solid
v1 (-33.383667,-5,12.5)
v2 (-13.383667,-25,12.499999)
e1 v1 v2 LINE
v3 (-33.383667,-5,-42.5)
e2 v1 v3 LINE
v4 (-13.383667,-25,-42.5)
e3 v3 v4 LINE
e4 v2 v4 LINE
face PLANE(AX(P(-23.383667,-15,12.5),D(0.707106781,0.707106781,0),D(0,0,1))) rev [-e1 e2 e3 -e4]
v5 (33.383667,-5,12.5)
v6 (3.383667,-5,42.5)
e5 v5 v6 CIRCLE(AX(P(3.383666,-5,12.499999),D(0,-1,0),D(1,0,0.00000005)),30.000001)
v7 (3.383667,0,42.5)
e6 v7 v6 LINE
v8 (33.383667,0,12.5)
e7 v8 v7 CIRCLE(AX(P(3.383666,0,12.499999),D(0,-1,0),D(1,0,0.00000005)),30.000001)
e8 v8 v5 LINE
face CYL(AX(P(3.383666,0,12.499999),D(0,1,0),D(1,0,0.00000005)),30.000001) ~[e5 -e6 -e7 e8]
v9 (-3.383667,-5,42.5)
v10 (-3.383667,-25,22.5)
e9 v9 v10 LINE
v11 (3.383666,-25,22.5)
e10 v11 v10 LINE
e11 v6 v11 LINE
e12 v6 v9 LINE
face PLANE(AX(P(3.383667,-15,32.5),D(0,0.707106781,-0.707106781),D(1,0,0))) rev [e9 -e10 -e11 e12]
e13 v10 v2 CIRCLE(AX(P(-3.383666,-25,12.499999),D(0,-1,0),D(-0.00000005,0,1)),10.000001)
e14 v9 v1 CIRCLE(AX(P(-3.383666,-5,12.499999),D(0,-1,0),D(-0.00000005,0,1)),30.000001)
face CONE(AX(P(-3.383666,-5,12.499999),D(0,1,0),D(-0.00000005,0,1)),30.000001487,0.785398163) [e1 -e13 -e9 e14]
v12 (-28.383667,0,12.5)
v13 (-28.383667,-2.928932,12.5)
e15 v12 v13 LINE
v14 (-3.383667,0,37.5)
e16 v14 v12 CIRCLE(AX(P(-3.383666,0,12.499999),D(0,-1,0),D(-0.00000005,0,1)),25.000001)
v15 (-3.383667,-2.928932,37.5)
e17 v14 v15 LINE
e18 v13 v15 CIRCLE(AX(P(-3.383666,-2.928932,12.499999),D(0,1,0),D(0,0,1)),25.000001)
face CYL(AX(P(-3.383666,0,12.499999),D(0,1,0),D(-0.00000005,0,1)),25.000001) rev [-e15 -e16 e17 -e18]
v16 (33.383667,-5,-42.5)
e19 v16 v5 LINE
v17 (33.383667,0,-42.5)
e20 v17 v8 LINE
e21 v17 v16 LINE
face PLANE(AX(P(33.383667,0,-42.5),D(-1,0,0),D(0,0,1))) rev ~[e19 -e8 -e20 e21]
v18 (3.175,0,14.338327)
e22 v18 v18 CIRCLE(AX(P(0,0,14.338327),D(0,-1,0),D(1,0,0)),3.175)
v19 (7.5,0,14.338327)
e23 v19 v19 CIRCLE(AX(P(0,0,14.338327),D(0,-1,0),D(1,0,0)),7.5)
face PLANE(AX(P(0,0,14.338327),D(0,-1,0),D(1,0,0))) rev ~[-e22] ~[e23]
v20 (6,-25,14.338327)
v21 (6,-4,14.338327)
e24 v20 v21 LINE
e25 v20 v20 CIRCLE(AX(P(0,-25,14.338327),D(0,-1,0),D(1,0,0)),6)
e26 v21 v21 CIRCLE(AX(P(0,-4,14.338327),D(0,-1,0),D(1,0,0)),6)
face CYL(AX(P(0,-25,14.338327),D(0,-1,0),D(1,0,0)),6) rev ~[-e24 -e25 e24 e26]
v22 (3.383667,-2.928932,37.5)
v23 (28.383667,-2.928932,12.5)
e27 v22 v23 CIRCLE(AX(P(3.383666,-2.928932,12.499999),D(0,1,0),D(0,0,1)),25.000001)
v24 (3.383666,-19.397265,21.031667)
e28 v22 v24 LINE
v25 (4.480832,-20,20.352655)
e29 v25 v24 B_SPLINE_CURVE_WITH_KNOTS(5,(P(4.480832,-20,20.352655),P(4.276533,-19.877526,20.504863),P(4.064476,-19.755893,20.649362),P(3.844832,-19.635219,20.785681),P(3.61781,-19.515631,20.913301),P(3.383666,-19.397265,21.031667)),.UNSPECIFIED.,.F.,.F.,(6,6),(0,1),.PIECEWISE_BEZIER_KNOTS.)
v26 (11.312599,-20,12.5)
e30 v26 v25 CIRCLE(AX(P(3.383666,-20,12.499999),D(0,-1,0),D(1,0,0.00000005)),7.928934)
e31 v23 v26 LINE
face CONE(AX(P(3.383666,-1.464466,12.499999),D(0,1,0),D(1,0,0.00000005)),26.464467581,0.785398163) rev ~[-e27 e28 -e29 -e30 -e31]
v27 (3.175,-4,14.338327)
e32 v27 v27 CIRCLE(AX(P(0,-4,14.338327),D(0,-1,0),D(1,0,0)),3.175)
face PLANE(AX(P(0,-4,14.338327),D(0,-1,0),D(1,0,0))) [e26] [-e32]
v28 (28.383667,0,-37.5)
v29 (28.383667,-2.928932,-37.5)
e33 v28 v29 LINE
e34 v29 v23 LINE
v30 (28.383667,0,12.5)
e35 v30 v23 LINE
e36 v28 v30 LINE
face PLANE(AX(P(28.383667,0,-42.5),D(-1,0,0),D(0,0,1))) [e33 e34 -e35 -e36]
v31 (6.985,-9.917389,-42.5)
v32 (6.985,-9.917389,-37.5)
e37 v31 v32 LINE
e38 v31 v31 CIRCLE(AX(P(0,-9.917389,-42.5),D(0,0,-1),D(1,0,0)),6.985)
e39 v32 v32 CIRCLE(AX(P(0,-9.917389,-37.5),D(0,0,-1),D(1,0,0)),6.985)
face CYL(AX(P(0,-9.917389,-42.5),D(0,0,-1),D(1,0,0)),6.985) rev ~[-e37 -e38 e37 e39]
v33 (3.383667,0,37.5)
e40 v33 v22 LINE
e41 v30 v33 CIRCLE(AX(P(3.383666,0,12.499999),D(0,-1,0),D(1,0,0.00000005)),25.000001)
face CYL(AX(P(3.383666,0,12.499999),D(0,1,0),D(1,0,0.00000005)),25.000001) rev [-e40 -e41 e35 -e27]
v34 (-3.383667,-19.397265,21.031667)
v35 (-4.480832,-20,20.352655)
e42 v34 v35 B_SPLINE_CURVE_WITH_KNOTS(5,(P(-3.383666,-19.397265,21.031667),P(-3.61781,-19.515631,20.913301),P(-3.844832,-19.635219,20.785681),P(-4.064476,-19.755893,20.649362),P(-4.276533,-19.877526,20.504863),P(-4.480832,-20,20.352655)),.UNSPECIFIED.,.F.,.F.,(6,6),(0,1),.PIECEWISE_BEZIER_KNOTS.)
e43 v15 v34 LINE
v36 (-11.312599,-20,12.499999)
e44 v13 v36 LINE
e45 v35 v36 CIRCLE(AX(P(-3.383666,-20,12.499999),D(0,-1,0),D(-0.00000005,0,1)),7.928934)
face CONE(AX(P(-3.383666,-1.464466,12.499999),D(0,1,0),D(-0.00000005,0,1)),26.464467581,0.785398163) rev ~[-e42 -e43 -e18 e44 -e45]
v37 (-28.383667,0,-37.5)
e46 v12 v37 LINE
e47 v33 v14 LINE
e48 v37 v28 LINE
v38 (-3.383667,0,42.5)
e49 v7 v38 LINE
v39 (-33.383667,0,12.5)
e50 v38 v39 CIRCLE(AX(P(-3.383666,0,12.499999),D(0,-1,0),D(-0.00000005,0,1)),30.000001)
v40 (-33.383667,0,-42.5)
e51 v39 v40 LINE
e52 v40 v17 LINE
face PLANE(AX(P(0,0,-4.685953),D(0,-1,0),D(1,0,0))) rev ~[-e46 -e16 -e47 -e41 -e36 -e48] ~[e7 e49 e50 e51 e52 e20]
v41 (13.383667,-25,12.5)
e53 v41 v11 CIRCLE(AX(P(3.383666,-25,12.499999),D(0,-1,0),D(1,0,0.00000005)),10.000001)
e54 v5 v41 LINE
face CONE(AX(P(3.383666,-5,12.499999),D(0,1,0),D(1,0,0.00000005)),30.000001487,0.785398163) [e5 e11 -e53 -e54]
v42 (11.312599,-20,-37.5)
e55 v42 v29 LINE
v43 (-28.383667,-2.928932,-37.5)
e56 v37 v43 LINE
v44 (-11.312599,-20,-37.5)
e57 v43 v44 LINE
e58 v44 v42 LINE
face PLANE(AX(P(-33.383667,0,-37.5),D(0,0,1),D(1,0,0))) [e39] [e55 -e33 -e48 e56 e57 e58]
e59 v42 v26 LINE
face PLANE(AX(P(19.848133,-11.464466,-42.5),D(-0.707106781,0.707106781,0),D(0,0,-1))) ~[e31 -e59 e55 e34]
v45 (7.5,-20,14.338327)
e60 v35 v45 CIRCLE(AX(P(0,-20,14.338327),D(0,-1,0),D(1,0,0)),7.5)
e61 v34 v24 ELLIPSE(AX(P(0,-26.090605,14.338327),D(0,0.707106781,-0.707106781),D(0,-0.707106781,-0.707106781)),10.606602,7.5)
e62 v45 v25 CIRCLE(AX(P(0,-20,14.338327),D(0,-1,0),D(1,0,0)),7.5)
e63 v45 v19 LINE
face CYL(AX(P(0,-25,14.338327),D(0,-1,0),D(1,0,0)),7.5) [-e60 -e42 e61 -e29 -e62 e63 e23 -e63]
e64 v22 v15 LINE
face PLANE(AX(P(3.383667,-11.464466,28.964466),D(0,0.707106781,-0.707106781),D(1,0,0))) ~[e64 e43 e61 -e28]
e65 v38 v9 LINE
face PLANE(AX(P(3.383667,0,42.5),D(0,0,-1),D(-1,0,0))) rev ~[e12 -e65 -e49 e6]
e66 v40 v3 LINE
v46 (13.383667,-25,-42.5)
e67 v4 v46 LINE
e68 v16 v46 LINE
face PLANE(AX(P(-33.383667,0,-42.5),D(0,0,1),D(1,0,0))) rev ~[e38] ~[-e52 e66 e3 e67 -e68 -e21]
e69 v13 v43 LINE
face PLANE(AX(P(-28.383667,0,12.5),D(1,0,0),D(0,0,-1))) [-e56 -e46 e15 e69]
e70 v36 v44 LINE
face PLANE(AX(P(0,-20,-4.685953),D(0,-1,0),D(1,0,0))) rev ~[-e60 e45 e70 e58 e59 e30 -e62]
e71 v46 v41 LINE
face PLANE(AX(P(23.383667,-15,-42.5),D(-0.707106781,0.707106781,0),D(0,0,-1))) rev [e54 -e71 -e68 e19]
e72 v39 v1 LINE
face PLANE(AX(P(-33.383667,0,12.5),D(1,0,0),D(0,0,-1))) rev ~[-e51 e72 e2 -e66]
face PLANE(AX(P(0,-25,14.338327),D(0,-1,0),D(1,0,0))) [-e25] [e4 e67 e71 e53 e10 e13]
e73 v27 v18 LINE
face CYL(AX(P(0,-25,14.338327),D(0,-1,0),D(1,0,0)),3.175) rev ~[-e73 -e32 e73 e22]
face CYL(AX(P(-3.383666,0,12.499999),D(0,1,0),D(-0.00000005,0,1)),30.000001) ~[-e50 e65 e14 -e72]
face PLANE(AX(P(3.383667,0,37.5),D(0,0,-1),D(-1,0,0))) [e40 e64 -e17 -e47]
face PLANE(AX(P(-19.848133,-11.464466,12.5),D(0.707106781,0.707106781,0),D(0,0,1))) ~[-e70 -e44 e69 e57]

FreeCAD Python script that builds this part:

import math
import FreeCAD as App
import Part
import Sketcher

V = App.Vector
Q = App.Units.Quantity


def edges_at(feature, points):
    """Names of the edges that pass closest to the given points."""
    edges = feature.Shape.Edges
    near = lambda p: min(range(len(edges)), key=lambda i: edges[i].distToShape(Part.Vertex(*p))[0])
    return sorted({f"Edge{near(p) + 1}" for p in points})


def faces_at(feature, points):
    """Names of the faces that lie closest to the given points."""
    faces = feature.Shape.Faces
    near = lambda p: min(range(len(faces)), key=lambda i: faces[i].distToShape(Part.Vertex(*p))[0])
    return sorted({f"Face{near(p) + 1}" for p in points})

doc = App.newDocument("Part")
params = doc.addObject("Spreadsheet::Sheet", "Params")
for row, (alias, value) in enumerate([
    ("sketch1_radius", "30.000001 mm"),
    ("sketch1_height", "55 mm"),
    ("pad1_length", "25 mm"),
    ("chamfer_size", "20 mm"),
    ("thickness_wall", "5 mm"),
    ("sketch2_diameter", "13.97 mm"),
    ("pocket1_length", "25 mm"),
    ("sketch3_diameter", "15 mm"),
    ("pad2_length", "25 mm"),
    ("sketch4_diameter", "12 mm"),
    ("pocket2_length", "21 mm"),
    ("sketch5_diameter", "6.35 mm"),
], start=1):
    params.set(f"A{row}", alias)
    params.set(f"B{row}", "=" + value)
    params.setAlias(f"B{row}", alias)

body = doc.addObject("PartDesign::Body", "Body")

# Sketch on XZ plane
sketch1 = body.newObject("Sketcher::SketchObject", "Sketch")
sketch1.AttachmentSupport = (doc.getObject("XZ_Plane"), [""])
sketch1.MapMode = "FlatFace"
sketch1.addGeometry([
    Part.ArcOfCircle(Part.Circle(V(3, 12, 0), V(0, 0, 1), 30), math.radians(0), math.radians(90)),  # 0
    Part.LineSegment(V(3, 42, 0), V(-3, 42, 0)),  # 1
    Part.ArcOfCircle(Part.Circle(V(-3, 12, 0), V(0, 0, 1), 30), math.radians(90), math.radians(180)),  # 2
    Part.LineSegment(V(-33, 12, 0), V(-33, -42, 0)),  # 3
    Part.LineSegment(V(-33, -42, 0), V(33, -42, 0)),  # 4
    Part.LineSegment(V(33, -42, 0), V(33, 12, 0)),  # 5
], False)
sketch1.addConstraint([
    Sketcher.Constraint("Tangent", 0, 2, 1, 1),
    Sketcher.Constraint("Tangent", 1, 2, 2, 1),
    Sketcher.Constraint("Tangent", 2, 2, 3, 1),
    Sketcher.Constraint("Coincident", 3, 2, 4, 1),
    Sketcher.Constraint("Coincident", 4, 2, 5, 1),
    Sketcher.Constraint("Tangent", 5, 2, 0, 1),
    Sketcher.Constraint("Horizontal", 1),
    Sketcher.Constraint("Vertical", 3),
    Sketcher.Constraint("Horizontal", 4),
    Sketcher.Constraint("Vertical", 5),
    Sketcher.Constraint("Equal", 0, 2),
    Sketcher.Constraint("Radius", 0, Q("30.000001 mm")),
    Sketcher.Constraint("DistanceY", 3, 2, 3, 1, Q("55 mm")),
    Sketcher.Constraint("DistanceY", -1, 1, 0, 3, Q("12.499999 mm")),
    Sketcher.Constraint("DistanceX", 1, 2, 1, 1, Q("6.767334 mm")),
    Sketcher.Constraint("DistanceX", -1, 1, 0, 3, Q("3.383666 mm")),
])
sketch1.setExpression("Constraints[11]", "Params.sketch1_radius")
sketch1.setExpression("Constraints[12]", "Params.sketch1_height")
pad1 = body.newObject("PartDesign::Pad", "Pad")
pad1.Profile = sketch1
pad1.setExpression("Length", "Params.pad1_length")
doc.recompute()

chamfer = body.newObject("PartDesign::Chamfer", "Chamfer")
chamfer.Base = (pad1, edges_at(pad1, [(-33.384, -25, -15)]))
chamfer.setExpression("Size", "Params.chamfer_size")
doc.recompute()

thickness = body.newObject("PartDesign::Thickness", "Thickness")
thickness.Base = (chamfer, faces_at(chamfer, [(0, 0, 0)]))
thickness.setExpression("Value", "Params.thickness_wall")
thickness.Reversed = True
thickness.Join = "Arc"

# Sketch on XY plane
sketch2 = body.newObject("Sketcher::SketchObject", "Sketch001")
sketch2.AttachmentSupport = (doc.getObject("XY_Plane"), [""])
sketch2.MapMode = "FlatFace"
sketch2.AttachmentOffset = App.Placement(V(0, 0, -42.5), App.Rotation())
sketch2.addGeometry(Part.Circle(V(0, -10, 0), V(0, 0, 1), 7), False)
sketch2.addConstraint([
    Sketcher.Constraint("PointOnObject", 0, 3, -2),
    Sketcher.Constraint("Diameter", 0, Q("13.97 mm")),
    Sketcher.Constraint("DistanceY", 0, 3, -1, 1, Q("9.917389 mm")),
])
sketch2.setExpression("Constraints[1]", "Params.sketch2_diameter")
pocket1 = body.newObject("PartDesign::Pocket", "Pocket")
pocket1.Profile = sketch2
pocket1.setExpression("Length", "Params.pocket1_length")
pocket1.Reversed = True

# Sketch on XZ plane
sketch3 = body.newObject("Sketcher::SketchObject", "Sketch002")
sketch3.AttachmentSupport = (doc.getObject("XZ_Plane"), [""])
sketch3.MapMode = "FlatFace"
sketch3.AttachmentOffset = App.Placement(V(0, 0, 25), App.Rotation())
sketch3.addGeometry(Part.Circle(V(0, 14, 0), V(0, 0, 1), 8), False)
sketch3.addConstraint([
    Sketcher.Constraint("PointOnObject", 0, 3, -2),
    Sketcher.Constraint("Diameter", 0, Q("15 mm")),
    Sketcher.Constraint("DistanceY", -1, 1, 0, 3, Q("14.338327 mm")),
])
sketch3.setExpression("Constraints[1]", "Params.sketch3_diameter")
pad2 = body.newObject("PartDesign::Pad", "Pad001")
pad2.Profile = sketch3
pad2.setExpression("Length", "Params.pad2_length")
pad2.Reversed = True

# Sketch on XZ plane
sketch4 = body.newObject("Sketcher::SketchObject", "Sketch003")
sketch4.AttachmentSupport = (doc.getObject("XZ_Plane"), [""])
sketch4.MapMode = "FlatFace"
sketch4.AttachmentOffset = App.Placement(V(0, 0, 25), App.Rotation())
sketch4.addGeometry(Part.Circle(V(0, 14, 0), V(0, 0, 1), 6), False)
sketch4.addConstraint([
    Sketcher.Constraint("PointOnObject", 0, 3, -2),
    Sketcher.Constraint("Diameter", 0, Q("12 mm")),
    Sketcher.Constraint("DistanceY", -1, 1, 0, 3, Q("14.338327 mm")),
])
sketch4.setExpression("Constraints[1]", "Params.sketch4_diameter")
pocket2 = body.newObject("PartDesign::Pocket", "Pocket001")
pocket2.Profile = sketch4
pocket2.setExpression("Length", "Params.pocket2_length")

# Sketch on XZ plane
sketch5 = body.newObject("Sketcher::SketchObject", "Sketch004")
sketch5.AttachmentSupport = (doc.getObject("XZ_Plane"), [""])
sketch5.MapMode = "FlatFace"
sketch5.AttachmentOffset = App.Placement(V(0, 0, 25), App.Rotation())
sketch5.addGeometry(Part.Circle(V(0, 14.3, 0), V(0, 0, 1), 3.2), False)
sketch5.addConstraint([
    Sketcher.Constraint("PointOnObject", 0, 3, -2),
    Sketcher.Constraint("Diameter", 0, Q("6.35 mm")),
    Sketcher.Constraint("DistanceY", -1, 1, 0, 3, Q("14.338327 mm")),
])
sketch5.setExpression("Constraints[1]", "Params.sketch5_diameter")
pocket3 = body.newObject("PartDesign::Pocket", "Pocket002")
pocket3.Profile = sketch5
pocket3.Type = "ThroughAll"

doc.recompute()
